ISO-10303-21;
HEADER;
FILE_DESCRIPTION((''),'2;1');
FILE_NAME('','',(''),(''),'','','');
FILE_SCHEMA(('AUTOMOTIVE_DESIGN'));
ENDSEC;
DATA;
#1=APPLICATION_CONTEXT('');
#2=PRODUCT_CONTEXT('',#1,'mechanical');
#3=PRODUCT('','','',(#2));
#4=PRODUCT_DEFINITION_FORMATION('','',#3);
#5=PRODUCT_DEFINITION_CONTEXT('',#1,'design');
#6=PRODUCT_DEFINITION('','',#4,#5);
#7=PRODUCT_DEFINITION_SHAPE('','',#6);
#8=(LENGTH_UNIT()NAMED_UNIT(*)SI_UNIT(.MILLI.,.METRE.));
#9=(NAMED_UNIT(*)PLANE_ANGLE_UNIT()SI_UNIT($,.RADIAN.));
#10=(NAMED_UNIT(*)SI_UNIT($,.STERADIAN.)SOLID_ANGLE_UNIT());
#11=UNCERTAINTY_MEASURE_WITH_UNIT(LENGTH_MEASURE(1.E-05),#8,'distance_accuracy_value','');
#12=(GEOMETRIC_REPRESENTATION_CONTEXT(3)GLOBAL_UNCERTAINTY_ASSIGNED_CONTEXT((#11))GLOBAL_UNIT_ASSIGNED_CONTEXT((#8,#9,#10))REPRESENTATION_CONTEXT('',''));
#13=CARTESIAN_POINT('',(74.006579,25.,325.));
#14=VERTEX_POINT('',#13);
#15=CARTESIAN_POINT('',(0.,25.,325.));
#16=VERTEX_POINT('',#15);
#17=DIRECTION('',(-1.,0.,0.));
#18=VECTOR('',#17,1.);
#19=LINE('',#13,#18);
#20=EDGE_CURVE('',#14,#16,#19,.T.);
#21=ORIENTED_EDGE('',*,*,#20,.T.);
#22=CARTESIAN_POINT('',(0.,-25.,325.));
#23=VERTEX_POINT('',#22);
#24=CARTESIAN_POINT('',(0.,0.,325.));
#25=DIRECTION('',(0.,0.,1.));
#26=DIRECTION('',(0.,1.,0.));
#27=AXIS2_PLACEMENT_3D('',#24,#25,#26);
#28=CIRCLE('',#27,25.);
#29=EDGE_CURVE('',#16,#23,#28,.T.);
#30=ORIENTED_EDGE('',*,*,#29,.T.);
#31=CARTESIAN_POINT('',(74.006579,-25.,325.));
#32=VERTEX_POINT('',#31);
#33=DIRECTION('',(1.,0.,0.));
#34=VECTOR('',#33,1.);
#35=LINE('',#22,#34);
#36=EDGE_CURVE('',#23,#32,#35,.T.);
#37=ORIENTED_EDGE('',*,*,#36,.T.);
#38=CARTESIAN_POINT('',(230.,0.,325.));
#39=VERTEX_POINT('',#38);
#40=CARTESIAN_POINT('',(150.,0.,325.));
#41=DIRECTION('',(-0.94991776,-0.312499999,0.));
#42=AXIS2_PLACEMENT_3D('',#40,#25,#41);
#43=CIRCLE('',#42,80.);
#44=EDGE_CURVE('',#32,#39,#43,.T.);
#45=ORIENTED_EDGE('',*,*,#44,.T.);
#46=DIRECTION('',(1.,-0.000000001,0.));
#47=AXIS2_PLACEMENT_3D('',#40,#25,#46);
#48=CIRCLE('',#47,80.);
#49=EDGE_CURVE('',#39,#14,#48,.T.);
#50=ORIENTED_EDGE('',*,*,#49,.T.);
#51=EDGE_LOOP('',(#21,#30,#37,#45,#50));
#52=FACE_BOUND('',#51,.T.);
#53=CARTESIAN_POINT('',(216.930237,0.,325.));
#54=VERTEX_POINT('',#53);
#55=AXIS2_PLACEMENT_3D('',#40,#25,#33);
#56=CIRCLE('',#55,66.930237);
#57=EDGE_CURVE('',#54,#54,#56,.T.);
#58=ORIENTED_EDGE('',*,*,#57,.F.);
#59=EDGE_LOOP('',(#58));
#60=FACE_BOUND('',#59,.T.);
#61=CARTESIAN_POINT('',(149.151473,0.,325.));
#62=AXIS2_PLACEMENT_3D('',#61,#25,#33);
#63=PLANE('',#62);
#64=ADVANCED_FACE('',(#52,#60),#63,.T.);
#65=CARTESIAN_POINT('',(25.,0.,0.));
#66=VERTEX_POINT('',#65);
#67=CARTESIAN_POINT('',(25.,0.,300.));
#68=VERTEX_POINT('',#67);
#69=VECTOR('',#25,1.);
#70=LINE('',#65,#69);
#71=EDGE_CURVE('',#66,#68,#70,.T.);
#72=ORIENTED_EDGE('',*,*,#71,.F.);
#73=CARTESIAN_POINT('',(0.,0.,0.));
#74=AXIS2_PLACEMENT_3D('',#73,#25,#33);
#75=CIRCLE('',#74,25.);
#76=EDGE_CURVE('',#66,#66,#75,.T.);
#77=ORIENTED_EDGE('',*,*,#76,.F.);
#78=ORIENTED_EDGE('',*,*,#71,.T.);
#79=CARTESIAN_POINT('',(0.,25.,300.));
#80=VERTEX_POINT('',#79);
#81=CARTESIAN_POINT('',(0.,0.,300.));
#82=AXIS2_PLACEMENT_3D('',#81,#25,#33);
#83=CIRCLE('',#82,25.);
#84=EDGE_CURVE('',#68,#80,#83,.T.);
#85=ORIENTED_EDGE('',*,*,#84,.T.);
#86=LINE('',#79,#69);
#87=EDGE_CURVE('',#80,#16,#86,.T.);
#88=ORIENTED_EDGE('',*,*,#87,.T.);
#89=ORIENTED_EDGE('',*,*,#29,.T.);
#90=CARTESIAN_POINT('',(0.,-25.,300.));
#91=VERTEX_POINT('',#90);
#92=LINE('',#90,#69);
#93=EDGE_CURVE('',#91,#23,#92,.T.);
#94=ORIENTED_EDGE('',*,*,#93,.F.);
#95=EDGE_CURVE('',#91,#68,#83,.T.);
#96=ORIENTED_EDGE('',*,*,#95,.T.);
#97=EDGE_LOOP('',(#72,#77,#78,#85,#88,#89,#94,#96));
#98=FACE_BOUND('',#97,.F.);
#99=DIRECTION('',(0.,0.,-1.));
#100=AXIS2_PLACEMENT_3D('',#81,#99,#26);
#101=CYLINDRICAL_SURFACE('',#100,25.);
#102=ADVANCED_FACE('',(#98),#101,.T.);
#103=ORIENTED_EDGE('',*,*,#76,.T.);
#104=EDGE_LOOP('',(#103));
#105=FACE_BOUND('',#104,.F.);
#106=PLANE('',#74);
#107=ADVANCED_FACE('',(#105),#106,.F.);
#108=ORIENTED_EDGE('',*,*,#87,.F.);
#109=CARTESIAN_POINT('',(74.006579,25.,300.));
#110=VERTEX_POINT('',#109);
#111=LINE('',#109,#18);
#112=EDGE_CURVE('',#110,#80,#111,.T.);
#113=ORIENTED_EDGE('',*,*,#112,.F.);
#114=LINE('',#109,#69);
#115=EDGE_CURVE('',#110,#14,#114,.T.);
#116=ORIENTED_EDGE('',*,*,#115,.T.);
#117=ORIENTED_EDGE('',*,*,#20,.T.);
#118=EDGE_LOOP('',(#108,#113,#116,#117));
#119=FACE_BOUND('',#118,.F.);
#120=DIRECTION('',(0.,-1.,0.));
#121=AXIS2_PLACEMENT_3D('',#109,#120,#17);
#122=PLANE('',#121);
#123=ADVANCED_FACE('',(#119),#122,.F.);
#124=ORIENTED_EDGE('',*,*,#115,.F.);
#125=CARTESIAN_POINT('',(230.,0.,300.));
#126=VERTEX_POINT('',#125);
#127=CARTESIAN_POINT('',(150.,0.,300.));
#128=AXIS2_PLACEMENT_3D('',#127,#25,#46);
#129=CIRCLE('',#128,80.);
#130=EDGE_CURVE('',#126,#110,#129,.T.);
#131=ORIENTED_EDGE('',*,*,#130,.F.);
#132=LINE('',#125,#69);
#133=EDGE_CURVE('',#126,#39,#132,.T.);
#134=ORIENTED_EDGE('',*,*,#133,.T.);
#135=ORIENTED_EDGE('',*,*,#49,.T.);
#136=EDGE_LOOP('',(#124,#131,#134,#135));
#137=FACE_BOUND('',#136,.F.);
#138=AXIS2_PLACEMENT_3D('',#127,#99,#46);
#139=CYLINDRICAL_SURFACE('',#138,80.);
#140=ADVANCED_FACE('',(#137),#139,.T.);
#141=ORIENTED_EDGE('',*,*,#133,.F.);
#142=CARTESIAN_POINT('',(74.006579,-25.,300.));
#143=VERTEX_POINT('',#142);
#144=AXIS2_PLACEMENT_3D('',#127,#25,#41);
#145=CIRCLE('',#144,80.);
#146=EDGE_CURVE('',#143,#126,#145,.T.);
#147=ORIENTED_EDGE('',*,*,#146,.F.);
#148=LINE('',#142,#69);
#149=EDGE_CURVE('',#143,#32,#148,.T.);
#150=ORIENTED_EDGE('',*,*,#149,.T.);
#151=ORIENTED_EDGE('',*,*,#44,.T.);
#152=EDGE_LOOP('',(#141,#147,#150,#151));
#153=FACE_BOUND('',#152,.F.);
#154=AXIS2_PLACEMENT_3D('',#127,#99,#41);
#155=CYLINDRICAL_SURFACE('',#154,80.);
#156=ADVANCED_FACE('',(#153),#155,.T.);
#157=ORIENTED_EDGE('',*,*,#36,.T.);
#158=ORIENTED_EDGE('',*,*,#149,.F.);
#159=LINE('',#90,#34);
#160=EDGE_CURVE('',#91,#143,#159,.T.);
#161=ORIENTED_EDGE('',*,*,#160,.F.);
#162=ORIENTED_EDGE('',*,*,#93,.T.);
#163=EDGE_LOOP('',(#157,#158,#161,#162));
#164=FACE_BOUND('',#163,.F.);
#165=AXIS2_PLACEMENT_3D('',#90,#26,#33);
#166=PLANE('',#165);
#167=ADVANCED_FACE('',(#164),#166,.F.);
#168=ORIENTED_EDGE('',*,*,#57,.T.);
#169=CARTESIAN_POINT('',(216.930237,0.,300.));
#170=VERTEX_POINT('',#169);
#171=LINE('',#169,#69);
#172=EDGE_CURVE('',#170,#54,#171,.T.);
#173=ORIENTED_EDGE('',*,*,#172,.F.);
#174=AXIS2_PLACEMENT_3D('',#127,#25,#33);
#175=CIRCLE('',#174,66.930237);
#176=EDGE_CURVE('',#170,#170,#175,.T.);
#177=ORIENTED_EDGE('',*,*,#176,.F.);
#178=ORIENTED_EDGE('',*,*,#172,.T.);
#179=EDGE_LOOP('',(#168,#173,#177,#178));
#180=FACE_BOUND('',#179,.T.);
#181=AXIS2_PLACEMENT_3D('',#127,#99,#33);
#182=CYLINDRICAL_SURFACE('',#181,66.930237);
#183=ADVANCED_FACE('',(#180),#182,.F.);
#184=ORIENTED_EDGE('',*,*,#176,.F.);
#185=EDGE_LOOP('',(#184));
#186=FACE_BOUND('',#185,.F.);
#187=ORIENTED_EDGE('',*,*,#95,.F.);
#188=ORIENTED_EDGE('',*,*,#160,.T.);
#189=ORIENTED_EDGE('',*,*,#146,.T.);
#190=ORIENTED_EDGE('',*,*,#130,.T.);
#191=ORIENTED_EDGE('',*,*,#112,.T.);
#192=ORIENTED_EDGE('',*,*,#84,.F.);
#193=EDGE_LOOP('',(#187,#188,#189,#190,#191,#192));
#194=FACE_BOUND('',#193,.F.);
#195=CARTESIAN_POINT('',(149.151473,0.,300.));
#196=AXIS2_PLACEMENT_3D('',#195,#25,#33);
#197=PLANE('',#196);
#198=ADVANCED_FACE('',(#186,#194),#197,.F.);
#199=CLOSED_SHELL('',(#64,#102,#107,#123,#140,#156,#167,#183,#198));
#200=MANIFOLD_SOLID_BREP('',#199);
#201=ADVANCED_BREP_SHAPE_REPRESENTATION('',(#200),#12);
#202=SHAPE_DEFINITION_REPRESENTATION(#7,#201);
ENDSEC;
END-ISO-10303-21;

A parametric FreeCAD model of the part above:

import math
import FreeCAD as App
import Part
import Sketcher
Q = App.Units.Quantity

doc = App.newDocument("Part")
body = doc.addObject("PartDesign::Body", "Body")

# Sketch on XY plane
sketch1 = body.newObject("Sketcher::SketchObject", "Sketch")
sketch1.AttachmentSupport = (doc.getObject("XY_Plane"), [""])
sketch1.MapMode = "FlatFace"
sketch1.addGeometry(Part.Circle(App.Vector(0, 0, 0), App.Vector(0, 0, 1), 25), False)
sketch1.addConstraint([
    Sketcher.Constraint("Coincident", 0, 3, -1, 1),
    Sketcher.Constraint("Diameter", 0, Q("50 mm")),
])
pad1 = body.newObject("PartDesign::Pad", "Pad")
pad1.Profile = sketch1
pad1.Length = 300

# Sketch on XY plane
sketch2 = body.newObject("Sketcher::SketchObject", "Sketch001")
sketch2.AttachmentSupport = (doc.getObject("XY_Plane"), [""])
sketch2.MapMode = "FlatFace"
sketch2.AttachmentOffset = App.Placement(App.Vector(0, 0, 300), App.Rotation())
sketch2.addGeometry([
    Part.ArcOfCircle(Part.Circle(App.Vector(150, 0, 0), App.Vector(0, 0, 1), 80), math.radians(-162), math.radians(0)),  # 0
    Part.ArcOfCircle(Part.Circle(App.Vector(150, 0, 0), App.Vector(0, 0, 1), 80), math.radians(0), math.radians(162)),  # 1
    Part.LineSegment(App.Vector(74, 25, 0), App.Vector(0, 25, 0)),  # 2
    Part.ArcOfCircle(Part.Circle(App.Vector(0, 0, 0), App.Vector(0, 0, 1), 25), math.radians(90), math.radians(270)),  # 3
    Part.LineSegment(App.Vector(0, -25, 0), App.Vector(74, -25, 0)),  # 4
    Part.Circle(App.Vector(150, 0, 0), App.Vector(0, 0, 1), 67),  # 5
], False)
sketch2.addConstraint([
    Sketcher.Constraint("Tangent", 0, 2, 1, 1),
    Sketcher.Constraint("Coincident", 1, 2, 2, 1),
    Sketcher.Constraint("Tangent", 2, 2, 3, 1),
    Sketcher.Constraint("Tangent", 3, 2, 4, 1),
    Sketcher.Constraint("Coincident", 4, 2, 0, 1),
    Sketcher.Constraint("Horizontal", 2),
    Sketcher.Constraint("Horizontal", 4),
    Sketcher.Constraint("Coincident", 3, 3, -1, 1),
    Sketcher.Constraint("Coincident", 5, 3, 0, 3),
    Sketcher.Constraint("Equal", 0, 1),
    Sketcher.Constraint("PointOnObject", 0, 3, -1),
    Sketcher.Constraint("PointOnObject", 0, 2, -1),
    Sketcher.Constraint("Radius", 0, Q("80 mm")),
    Sketcher.Constraint("Radius", 3, Q("25 mm")),
    Sketcher.Constraint("DistanceX", -1, 1, 0, 3, Q("150 mm")),
    Sketcher.Constraint("Diameter", 5, Q("133.860474 mm")),
])
pad2 = body.newObject("PartDesign::Pad", "Pad001")
pad2.Profile = sketch2
pad2.Length = 25

doc.recompute()
